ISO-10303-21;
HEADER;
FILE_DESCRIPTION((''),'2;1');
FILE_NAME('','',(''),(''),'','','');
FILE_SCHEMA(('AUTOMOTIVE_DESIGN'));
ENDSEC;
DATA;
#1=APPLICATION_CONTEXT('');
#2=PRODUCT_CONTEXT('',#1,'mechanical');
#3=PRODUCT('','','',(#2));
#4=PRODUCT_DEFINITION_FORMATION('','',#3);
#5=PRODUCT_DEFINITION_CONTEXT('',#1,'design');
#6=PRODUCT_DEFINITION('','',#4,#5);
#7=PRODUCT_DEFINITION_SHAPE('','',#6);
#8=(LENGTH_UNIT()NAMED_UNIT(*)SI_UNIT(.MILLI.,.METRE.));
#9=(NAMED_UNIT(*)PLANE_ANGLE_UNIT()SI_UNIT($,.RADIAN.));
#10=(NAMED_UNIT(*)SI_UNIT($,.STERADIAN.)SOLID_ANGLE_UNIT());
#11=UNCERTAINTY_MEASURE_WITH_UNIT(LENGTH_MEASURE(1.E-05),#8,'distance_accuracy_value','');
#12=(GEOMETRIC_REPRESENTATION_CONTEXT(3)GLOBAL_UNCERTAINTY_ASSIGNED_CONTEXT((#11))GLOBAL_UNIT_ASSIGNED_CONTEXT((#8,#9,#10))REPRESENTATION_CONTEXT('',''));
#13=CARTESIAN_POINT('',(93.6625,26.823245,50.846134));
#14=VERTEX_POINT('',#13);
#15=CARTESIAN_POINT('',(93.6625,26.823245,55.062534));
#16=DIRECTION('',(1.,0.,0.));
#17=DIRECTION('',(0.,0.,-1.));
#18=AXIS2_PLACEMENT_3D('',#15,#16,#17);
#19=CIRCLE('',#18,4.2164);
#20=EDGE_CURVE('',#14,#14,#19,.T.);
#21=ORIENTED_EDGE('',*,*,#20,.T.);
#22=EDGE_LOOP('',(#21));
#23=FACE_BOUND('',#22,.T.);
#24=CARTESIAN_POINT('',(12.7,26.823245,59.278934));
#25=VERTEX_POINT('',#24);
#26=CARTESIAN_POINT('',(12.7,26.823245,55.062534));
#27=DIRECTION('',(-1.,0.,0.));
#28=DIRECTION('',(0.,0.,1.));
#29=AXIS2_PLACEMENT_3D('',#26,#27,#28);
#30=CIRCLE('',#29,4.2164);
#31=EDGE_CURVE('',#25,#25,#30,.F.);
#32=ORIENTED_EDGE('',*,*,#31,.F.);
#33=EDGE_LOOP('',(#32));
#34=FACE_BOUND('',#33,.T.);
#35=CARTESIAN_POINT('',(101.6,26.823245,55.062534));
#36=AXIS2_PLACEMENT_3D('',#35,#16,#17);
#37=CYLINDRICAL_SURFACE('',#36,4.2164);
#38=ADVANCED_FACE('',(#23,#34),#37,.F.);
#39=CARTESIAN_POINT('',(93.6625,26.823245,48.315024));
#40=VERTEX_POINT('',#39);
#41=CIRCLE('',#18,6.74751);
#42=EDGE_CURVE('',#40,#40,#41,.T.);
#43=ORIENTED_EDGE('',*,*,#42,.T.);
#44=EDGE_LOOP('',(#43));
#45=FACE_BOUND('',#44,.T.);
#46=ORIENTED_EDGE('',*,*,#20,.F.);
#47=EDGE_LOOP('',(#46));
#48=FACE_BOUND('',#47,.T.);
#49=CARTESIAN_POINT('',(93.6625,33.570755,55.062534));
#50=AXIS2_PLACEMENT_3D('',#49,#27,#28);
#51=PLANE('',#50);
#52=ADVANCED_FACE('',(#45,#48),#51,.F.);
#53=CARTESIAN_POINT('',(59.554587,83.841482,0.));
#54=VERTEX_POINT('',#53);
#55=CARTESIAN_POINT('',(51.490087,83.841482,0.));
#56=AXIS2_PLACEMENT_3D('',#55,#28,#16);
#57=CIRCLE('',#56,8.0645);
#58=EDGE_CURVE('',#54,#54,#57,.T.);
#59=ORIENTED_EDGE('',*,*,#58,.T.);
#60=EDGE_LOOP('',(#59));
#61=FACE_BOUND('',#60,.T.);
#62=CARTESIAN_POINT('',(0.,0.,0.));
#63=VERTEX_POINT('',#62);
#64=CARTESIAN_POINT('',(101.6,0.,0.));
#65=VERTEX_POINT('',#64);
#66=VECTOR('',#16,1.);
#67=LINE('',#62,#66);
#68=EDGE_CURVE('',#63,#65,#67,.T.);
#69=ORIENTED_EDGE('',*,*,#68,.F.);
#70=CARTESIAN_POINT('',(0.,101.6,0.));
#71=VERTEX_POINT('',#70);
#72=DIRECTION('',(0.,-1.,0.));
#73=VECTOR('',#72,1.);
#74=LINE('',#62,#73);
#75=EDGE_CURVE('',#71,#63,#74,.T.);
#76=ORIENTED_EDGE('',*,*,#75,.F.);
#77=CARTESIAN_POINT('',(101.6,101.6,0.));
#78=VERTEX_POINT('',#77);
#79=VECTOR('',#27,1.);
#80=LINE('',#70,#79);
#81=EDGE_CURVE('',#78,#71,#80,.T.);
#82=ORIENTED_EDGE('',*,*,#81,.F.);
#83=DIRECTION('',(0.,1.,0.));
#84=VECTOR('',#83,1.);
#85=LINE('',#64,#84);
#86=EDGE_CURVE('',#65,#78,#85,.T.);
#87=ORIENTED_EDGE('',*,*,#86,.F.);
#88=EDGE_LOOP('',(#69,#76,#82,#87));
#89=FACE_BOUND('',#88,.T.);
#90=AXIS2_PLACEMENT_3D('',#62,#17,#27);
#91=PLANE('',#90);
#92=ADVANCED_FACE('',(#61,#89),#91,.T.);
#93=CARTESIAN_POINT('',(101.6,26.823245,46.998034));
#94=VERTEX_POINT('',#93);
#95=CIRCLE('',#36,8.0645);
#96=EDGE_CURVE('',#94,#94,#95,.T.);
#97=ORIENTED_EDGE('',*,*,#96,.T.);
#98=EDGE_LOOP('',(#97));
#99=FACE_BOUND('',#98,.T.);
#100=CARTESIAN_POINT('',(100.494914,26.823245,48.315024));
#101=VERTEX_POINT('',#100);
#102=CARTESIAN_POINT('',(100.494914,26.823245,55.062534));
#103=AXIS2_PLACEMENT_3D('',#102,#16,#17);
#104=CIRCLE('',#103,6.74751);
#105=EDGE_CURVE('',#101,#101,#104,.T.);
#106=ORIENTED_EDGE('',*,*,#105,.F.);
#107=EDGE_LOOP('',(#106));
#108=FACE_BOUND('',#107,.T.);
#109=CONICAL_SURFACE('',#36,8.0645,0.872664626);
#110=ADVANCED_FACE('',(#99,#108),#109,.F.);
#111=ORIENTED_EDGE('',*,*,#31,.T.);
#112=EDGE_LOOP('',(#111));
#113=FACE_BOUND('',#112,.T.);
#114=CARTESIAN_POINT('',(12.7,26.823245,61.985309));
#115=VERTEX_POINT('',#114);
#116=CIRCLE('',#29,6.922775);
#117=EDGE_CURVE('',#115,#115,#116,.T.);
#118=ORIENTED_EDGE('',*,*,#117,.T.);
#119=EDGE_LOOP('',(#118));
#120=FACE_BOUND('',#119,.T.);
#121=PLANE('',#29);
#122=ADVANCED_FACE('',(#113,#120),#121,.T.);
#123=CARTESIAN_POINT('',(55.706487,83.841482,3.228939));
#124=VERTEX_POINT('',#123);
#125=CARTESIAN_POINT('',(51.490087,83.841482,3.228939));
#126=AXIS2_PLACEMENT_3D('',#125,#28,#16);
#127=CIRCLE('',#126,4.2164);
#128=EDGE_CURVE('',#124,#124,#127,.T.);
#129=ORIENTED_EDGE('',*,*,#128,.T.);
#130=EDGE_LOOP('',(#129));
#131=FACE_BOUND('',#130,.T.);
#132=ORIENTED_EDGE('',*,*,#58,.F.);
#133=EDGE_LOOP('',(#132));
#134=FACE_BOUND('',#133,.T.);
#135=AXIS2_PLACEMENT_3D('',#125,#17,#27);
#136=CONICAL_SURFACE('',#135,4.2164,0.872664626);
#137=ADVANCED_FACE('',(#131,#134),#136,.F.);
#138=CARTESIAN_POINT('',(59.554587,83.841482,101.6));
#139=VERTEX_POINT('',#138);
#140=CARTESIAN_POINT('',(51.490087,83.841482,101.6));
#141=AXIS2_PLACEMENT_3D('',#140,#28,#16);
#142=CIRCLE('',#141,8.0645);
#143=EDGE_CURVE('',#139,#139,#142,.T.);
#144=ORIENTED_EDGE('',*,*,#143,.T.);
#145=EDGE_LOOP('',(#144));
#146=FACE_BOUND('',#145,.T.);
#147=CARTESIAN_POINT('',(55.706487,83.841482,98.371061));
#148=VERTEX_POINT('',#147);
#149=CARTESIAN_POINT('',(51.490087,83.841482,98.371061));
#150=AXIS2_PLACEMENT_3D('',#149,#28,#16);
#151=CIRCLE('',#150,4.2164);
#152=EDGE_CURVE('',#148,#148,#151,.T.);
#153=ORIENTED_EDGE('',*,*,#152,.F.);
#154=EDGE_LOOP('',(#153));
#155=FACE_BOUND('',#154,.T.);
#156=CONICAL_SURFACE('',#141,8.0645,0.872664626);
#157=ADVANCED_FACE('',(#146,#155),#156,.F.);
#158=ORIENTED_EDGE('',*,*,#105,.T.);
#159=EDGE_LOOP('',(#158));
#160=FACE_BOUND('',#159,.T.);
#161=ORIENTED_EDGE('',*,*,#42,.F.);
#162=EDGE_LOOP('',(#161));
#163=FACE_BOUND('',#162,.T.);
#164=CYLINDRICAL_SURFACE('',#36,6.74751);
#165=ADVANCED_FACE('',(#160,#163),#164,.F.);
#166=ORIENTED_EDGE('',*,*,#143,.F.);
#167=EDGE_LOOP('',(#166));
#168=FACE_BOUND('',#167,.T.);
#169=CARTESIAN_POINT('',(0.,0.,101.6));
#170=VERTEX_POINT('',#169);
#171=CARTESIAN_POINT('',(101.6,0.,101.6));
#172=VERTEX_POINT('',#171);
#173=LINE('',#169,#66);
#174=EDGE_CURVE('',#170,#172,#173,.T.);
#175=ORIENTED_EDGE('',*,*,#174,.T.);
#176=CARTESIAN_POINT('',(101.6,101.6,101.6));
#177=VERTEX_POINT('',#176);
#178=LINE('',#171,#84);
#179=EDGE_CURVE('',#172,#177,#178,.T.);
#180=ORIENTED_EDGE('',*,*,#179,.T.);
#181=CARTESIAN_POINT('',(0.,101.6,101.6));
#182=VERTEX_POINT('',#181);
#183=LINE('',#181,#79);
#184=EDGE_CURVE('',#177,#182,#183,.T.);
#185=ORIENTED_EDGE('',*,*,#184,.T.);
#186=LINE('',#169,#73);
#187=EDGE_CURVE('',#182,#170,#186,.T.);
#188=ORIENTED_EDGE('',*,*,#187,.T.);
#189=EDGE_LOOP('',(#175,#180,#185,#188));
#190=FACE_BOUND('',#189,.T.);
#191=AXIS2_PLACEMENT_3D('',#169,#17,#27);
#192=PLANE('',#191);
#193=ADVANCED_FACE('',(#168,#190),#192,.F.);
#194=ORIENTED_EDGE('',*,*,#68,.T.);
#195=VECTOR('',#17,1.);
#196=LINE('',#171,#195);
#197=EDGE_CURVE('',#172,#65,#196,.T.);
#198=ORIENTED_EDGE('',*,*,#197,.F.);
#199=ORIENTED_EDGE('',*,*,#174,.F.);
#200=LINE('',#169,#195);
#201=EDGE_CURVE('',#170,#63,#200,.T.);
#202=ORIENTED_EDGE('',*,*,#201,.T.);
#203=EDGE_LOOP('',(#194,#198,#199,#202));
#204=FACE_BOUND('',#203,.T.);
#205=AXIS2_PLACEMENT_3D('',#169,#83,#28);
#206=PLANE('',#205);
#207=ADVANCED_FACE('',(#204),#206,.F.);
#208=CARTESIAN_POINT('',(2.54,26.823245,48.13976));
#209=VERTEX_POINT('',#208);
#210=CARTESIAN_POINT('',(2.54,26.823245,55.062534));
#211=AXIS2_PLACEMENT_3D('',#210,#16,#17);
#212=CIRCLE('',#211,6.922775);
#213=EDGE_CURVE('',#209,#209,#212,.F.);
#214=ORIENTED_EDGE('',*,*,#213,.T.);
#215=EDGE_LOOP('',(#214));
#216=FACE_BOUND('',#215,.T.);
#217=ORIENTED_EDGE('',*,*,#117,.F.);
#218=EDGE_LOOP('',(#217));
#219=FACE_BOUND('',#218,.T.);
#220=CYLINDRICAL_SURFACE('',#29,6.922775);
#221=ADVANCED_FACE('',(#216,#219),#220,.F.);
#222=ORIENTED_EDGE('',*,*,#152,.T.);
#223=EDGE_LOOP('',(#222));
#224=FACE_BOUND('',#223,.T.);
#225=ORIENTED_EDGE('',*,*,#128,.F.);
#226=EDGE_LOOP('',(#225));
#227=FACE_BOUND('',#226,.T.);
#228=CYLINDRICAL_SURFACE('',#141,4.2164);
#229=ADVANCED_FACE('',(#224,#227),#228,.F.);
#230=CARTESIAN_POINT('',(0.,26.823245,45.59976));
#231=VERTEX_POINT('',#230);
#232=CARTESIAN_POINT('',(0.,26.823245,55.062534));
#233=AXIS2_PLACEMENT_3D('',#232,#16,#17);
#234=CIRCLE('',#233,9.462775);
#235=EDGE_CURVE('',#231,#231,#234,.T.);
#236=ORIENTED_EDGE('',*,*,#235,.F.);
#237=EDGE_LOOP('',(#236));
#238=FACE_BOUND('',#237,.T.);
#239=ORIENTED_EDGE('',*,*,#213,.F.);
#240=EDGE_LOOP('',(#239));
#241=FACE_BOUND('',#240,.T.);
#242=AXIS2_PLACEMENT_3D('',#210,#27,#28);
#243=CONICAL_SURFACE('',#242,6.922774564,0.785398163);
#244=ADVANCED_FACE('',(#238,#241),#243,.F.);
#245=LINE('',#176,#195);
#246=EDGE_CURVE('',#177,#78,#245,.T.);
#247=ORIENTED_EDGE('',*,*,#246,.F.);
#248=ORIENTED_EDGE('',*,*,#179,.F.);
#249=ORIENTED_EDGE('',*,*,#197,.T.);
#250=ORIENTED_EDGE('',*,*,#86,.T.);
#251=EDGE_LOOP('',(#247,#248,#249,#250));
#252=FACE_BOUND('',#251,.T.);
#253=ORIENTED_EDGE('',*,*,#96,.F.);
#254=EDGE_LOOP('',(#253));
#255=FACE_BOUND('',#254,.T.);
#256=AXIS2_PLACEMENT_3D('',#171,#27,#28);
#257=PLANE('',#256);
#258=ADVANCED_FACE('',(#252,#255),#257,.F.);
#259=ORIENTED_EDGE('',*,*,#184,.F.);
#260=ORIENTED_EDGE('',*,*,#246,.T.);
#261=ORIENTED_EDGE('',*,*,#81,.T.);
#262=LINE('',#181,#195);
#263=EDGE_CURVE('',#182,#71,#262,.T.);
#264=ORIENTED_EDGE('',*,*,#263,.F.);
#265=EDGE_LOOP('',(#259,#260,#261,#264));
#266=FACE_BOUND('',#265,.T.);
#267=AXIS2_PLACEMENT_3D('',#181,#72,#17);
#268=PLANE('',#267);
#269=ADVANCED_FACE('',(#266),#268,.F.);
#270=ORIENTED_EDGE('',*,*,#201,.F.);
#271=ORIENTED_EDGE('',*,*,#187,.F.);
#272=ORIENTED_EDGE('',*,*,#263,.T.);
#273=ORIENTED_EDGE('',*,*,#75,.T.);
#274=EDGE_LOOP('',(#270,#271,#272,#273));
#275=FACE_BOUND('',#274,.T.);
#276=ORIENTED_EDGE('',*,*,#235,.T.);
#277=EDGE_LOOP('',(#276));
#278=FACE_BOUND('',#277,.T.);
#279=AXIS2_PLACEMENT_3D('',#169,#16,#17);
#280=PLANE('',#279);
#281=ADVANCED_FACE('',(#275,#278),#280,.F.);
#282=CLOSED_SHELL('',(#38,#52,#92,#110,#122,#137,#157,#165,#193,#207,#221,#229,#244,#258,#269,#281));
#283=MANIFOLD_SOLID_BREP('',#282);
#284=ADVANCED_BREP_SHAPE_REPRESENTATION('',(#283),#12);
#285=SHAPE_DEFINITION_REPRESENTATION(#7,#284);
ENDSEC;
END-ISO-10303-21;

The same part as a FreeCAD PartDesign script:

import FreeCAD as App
import Part
import Sketcher
Q = App.Units.Quantity


def edges_at(feature, points):
    """Names of the edges that pass closest to the given points."""
    edges = feature.Shape.Edges
    near = lambda p: min(range(len(edges)), key=lambda i: edges[i].distToShape(Part.Vertex(*p))[0])
    return sorted({f"Edge{near(p) + 1}" for p in points})


def add_polygon(sketch, points):
    """Adds a closed chain of lines whose ends are joined by coincident constraints."""
    first, n = sketch.GeometryCount, len(points)
    for a, b in zip(points, points[1:] + points[:1]):
        sketch.addGeometry(Part.LineSegment(App.Vector(*a, 0), App.Vector(*b, 0)), False)
    for i in range(n):
        sketch.addConstraint(Sketcher.Constraint("Coincident", first + i, 2, first + (i + 1) % n, 1))

doc = App.newDocument("Part")
body = doc.addObject("PartDesign::Body", "Body")

sketch1 = body.newObject("Sketcher::SketchObject", "Sketch")
sketch1.AttachmentSupport = (doc.getObject("XY_Plane"), [""])
sketch1.MapMode = "FlatFace"
add_polygon(sketch1, [(0, 101.6), (0, 0), (101.6, 0), (101.6, 101.6)])
sketch1.addConstraint([
    Sketcher.Constraint("Vertical", 0),
    Sketcher.Constraint("Horizontal", 1),
    Sketcher.Constraint("Vertical", 2),
    Sketcher.Constraint("Horizontal", 3),
    Sketcher.Constraint("Coincident", 0, 2, -1, 1),
    Sketcher.Constraint("Equal", 3, 0),
    Sketcher.Constraint("DistanceX", 1, 1, 1, 2, Q("4 in")),
])
pad1 = body.newObject("PartDesign::Pad", "Pad")
pad1.Profile = sketch1
pad1.Length = Q("4 in")

sketch2 = body.newObject("Sketcher::SketchObject", "Sketch001")
sketch2.AttachmentSupport = (doc.getObject("YZ_Plane"), [""])
sketch2.MapMode = "FlatFace"
sketch2.AttachmentOffset = App.Placement(App.Vector(0, 0, 51.490087), App.Rotation())
add_polygon(sketch2, [(83.841482, 0), (83.841482, 101.6), (75.776982, 101.6), (79.625082, 98.371061), (79.625082, 3.228939), (75.776982, 0)])
sketch2.addGeometry(Part.LineSegment(App.Vector(83.841482, 101.6, 0), App.Vector(83.841482, 0, 0)), True)
sketch2.addConstraint([
    Sketcher.Constraint("Vertical", 0),
    Sketcher.Constraint("Horizontal", 1),
    Sketcher.Constraint("Vertical", 3),
    Sketcher.Constraint("Horizontal", 5),
    Sketcher.Constraint("Vertical", 6),
    Sketcher.Constraint("Coincident", 6, 1, 0, 2),
    Sketcher.Constraint("PointOnObject", 4, 2, -1),
    Sketcher.Constraint("PointOnObject", 6, 2, -1),
    Sketcher.Constraint("Vertical", 1, 2, 4, 2),
    Sketcher.Constraint("Equal", 2, 4),
    Sketcher.Constraint("DistanceY", 0, 1, 0, 2, Q("4 in")),
    Sketcher.Constraint("Angle", 2, Q("-40 deg")),
    Sketcher.Constraint("DistanceX", 1, 2, 1, 1, Q("0.3175 in")),
    Sketcher.Constraint("DistanceX", 2, 2, 0, 2, Q("0.166 in")),
    Sketcher.Constraint("DistanceX", -1, 1, 0, 2, Q("83.841482 mm")),
])
groove = body.newObject("PartDesign::Groove", "Groove")
groove.Profile = sketch2
groove.ReferenceAxis = (sketch2, ["Axis0"])
groove.Angle = 360

sketch3 = body.newObject("Sketcher::SketchObject", "Sketch002")
sketch3.AttachmentSupport = (doc.getObject("XZ_Plane"), [""])
sketch3.MapMode = "FlatFace"
sketch3.AttachmentOffset = App.Placement(App.Vector(0, 0, -26.823245), App.Rotation())
add_polygon(sketch3, [(0, 55.062534), (101.6, 55.062534), (101.6, 46.998034), (100.494914, 48.315024), (93.6625, 48.315024), (93.6625, 50.846134), (0, 50.846134)])
sketch3.addGeometry(Part.LineSegment(App.Vector(101.6, 55.062534, 0), App.Vector(0, 55.062534, 0)), True)
sketch3.addConstraint([
    Sketcher.Constraint("Horizontal", 0),
    Sketcher.Constraint("Vertical", 1),
    Sketcher.Constraint("Horizontal", 3),
    Sketcher.Constraint("Vertical", 4),
    Sketcher.Constraint("Horizontal", 5),
    Sketcher.Constraint("Vertical", 6),
    Sketcher.Constraint("Horizontal", 7),
    Sketcher.Constraint("Coincident", 7, 1, 0, 2),
    Sketcher.Constraint("PointOnObject", 5, 2, -2),
    Sketcher.Constraint("PointOnObject", 7, 2, -2),
    Sketcher.Constraint("DistanceX", 0, 1, 0, 2, Q("4 in")),
    Sketcher.Constraint("Angle", 2, Q("130 deg")),
    Sketcher.Constraint("DistanceX", 5, 2, 5, 1, Q("3.6875 in")),
    Sketcher.Constraint("DistanceY", 6, 1, 6, 2, Q("0.166 in")),
    Sketcher.Constraint("DistanceY", 1, 2, 1, 1, Q("0.3175 in")),
    Sketcher.Constraint("DistanceY", 4, 1, 4, 2, Q("2.53111 mm")),
    Sketcher.Constraint("DistanceY", -1, 1, 0, 2, Q("55.062534 mm")),
])
groove2 = body.newObject("PartDesign::Groove", "Groove001")
groove2.Profile = sketch3
groove2.ReferenceAxis = (sketch3, ["Axis0"])
groove2.Angle = 360

sketch4 = body.newObject("Sketcher::SketchObject", "Sketch003")
sketch4.AttachmentSupport = (doc.getObject("YZ_Plane"), [""])
sketch4.MapMode = "FlatFace"
sketch4.addGeometry(Part.Circle(App.Vector(26.823245, 55.062534, 0), App.Vector(0, 0, 1), 6.922775), False)
sketch4.addConstraint([
    Sketcher.Constraint("Diameter", 0, Q("13.845549 mm")),
    Sketcher.Constraint("DistanceX", -1, 1, 0, 3, Q("26.823245 mm")),
    Sketcher.Constraint("DistanceY", -1, 1, 0, 3, Q("55.062534 mm")),
])
pocket1 = body.newObject("PartDesign::Pocket", "Pocket")
pocket1.Profile = sketch4
pocket1.Length = Q("0.5 in")
pocket1.Reversed = True
doc.recompute()

chamfer = body.newObject("PartDesign::Chamfer", "Chamfer")
chamfer.Base = (pocket1, edges_at(pocket1, [(0, 26.823, 48.14)]))
chamfer.Size = Q("0.1 in")

doc.recompute()
